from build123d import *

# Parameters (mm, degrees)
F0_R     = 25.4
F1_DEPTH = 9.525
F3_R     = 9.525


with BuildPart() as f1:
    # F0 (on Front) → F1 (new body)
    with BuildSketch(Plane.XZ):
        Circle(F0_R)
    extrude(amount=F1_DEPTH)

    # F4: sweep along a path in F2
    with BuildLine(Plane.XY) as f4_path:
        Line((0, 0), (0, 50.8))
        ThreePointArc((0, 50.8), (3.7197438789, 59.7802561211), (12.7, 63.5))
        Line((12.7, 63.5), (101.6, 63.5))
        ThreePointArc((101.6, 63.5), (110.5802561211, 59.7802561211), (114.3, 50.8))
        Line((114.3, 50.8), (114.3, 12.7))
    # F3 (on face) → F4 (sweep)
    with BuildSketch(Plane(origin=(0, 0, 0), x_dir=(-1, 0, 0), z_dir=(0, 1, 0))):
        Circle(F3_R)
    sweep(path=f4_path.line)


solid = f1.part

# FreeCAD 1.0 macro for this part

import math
import FreeCAD as App
import Part
import Sketcher

V = App.Vector
Q = App.Units.Quantity

doc = App.newDocument("Part")
params = doc.addObject("Spreadsheet::Sheet", "Params")
for row, (alias, value) in enumerate([
    ("sketch1_diameter", "2 in"),
    ("pad1_length", "0.375 in"),
    ("sketch2_diameter", "0.75 in"),
    ("sketch3_radius", "0.5 in"),
    ("sketch3_height", "2 in"),
    ("sketch3_width", "3.5 in"),
    ("sketch3_height2", "1.5 in"),
], start=1):
    params.set(f"A{row}", alias)
    params.set(f"B{row}", "=" + value)
    params.setAlias(f"B{row}", alias)

body = doc.addObject("PartDesign::Body", "Body")

# Sketch on XZ plane
sketch1 = body.newObject("Sketcher::SketchObject", "Sketch")
sketch1.AttachmentSupport = (doc.getObject("XZ_Plane"), [""])
sketch1.MapMode = "FlatFace"
sketch1.addGeometry(Part.Circle(V(0, 0, 0), V(0, 0, 1), 25.4), False)
sketch1.addConstraint(Sketcher.Constraint("Coincident", 0, 3, -1, 1))
sketch1.addConstraint(Sketcher.Constraint("Diameter", 0, Q("2 in")))
sketch1.setExpression("Constraints[1]", "Params.sketch1_diameter")
pad1 = body.newObject("PartDesign::Pad", "Pad")
pad1.Profile = sketch1
pad1.setExpression("Length", "Params.pad1_length")

# Sketch on XZ plane
sketch2 = body.newObject("Sketcher::SketchObject", "Sketch001")
sketch2.AttachmentSupport = (doc.getObject("XZ_Plane"), [""])
sketch2.MapMode = "FlatFace"
sketch2.addGeometry(Part.Circle(V(0, 0, 0), V(0, 0, 1), 9.525), False)
sketch2.addConstraint(Sketcher.Constraint("Coincident", 0, 3, -1, 1))
sketch2.addConstraint(Sketcher.Constraint("Diameter", 0, Q("0.75 in")))
sketch2.setExpression("Constraints[1]", "Params.sketch2_diameter")

# Sketch on XY plane
sketch3 = body.newObject("Sketcher::SketchObject", "Sketch002")
sketch3.AttachmentSupport = (doc.getObject("XY_Plane"), [""])
sketch3.MapMode = "FlatFace"
sketch3.addGeometry(Part.LineSegment(V(0, 0, 0), V(0, 50.8, 0)), False)
sketch3.addGeometry(Part.ArcOfCircle(Part.Circle(V(12.7, 50.8, 0), V(0, 0, 1), 12.7), math.radians(90), math.radians(180)), False)
sketch3.addGeometry(Part.LineSegment(V(12.7, 63.5, 0), V(101.6, 63.5, 0)), False)
sketch3.addGeometry(Part.ArcOfCircle(Part.Circle(V(101.6, 50.8, 0), V(0, 0, 1), 12.7), math.radians(0), math.radians(90)), False)
sketch3.addGeometry(Part.LineSegment(V(114.3, 50.8, 0), V(114.3, 12.7, 0)), False)
sketch3.addConstraint(Sketcher.Constraint("Tangent", 0, 2, 1, 2))
sketch3.addConstraint(Sketcher.Constraint("Tangent", 1, 1, 2, 1))
sketch3.addConstraint(Sketcher.Constraint("Tangent", 2, 2, 3, 2))
sketch3.addConstraint(Sketcher.Constraint("Tangent", 3, 1, 4, 1))
sketch3.addConstraint(Sketcher.Constraint("Vertical", 0))
sketch3.addConstraint(Sketcher.Constraint("Horizontal", 2))
sketch3.addConstraint(Sketcher.Constraint("Vertical", 4))
sketch3.addConstraint(Sketcher.Constraint("Coincident", 0, 1, -1, 1))
sketch3.addConstraint(Sketcher.Constraint("Equal", 1, 3))
sketch3.addConstraint(Sketcher.Constraint("Radius", 1, Q("0.5 in")))
sketch3.addConstraint(Sketcher.Constraint("DistanceY", 0, 1, 0, 2, Q("2 in")))
sketch3.addConstraint(Sketcher.Constraint("DistanceX", 2, 1, 2, 2, Q("3.5 in")))
sketch3.addConstraint(Sketcher.Constraint("DistanceY", 4, 2, 4, 1, Q("1.5 in")))
sketch3.setExpression("Constraints[9]", "Params.sketch3_radius")
sketch3.setExpression("Constraints[10]", "Params.sketch3_height")
sketch3.setExpression("Constraints[11]", "Params.sketch3_width")
sketch3.setExpression("Constraints[12]", "Params.sketch3_height2")
doc.recompute()

additivepipe = body.newObject("PartDesign::AdditivePipe", "AdditivePipe")
additivepipe.Profile = sketch2
additivepipe.Spine = (sketch3, ["Edge1", "Edge2", "Edge3", "Edge4", "Edge5"])

doc.recompute()
